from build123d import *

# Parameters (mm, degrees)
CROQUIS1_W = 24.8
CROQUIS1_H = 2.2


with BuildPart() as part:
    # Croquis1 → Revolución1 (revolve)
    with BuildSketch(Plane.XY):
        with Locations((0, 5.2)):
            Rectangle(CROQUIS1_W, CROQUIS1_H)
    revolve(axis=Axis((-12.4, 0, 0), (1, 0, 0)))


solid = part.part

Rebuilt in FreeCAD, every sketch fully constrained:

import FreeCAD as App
import Part
import Sketcher
from FreeCAD import Vector


def add_polygon(sketch, points):
    """Adds a closed chain of lines whose ends are joined by coincident constraints."""
    first, n = sketch.GeometryCount, len(points)
    for a, b in zip(points, points[1:] + points[:1]):
        sketch.addGeometry(Part.LineSegment(App.Vector(*a, 0), App.Vector(*b, 0)), False)
    for i in range(n):
        sketch.addConstraint(Sketcher.Constraint("Coincident", first + i, 2, first + (i + 1) % n, 1))

doc = App.newDocument("Part")
body = doc.addObject("PartDesign::Body", "Body")

# Sketch on XY plane
sketch1 = body.newObject("Sketcher::SketchObject", "Sketch")
sketch1.AttachmentSupport = (doc.getObject("XY_Plane"), [""])
sketch1.MapMode = "FlatFace"
add_polygon(sketch1, [(-12.4, 6.3), (-12.4, 4.1), (12.4, 4.1), (12.4, 6.3)])  # lines 0-3
sketch1.addConstraint(Sketcher.Constraint("Vertical", 0))
sketch1.addConstraint(Sketcher.Constraint("Horizontal", 1))
sketch1.addConstraint(Sketcher.Constraint("Vertical", 2))
sketch1.addConstraint(Sketcher.Constraint("Horizontal", 3))
sketch1.addConstraint(Sketcher.Constraint("DistanceX", 1, 1, 1, 2, 24.8))
sketch1.addConstraint(Sketcher.Constraint("DistanceY", 0, 2, 0, 1, 2.2))
sketch1.addConstraint(Sketcher.Constraint("DistanceX", 0, 2, -1, 1, 12.4))
sketch1.addConstraint(Sketcher.Constraint("DistanceY", -1, 1, 0, 2, 4.1))
revolution = body.newObject("PartDesign::Revolution", "Revolution")
revolution.Profile = sketch1
revolution.ReferenceAxis = (sketch1, ["H_Axis"])
revolution.Angle = 360

doc.recompute()
